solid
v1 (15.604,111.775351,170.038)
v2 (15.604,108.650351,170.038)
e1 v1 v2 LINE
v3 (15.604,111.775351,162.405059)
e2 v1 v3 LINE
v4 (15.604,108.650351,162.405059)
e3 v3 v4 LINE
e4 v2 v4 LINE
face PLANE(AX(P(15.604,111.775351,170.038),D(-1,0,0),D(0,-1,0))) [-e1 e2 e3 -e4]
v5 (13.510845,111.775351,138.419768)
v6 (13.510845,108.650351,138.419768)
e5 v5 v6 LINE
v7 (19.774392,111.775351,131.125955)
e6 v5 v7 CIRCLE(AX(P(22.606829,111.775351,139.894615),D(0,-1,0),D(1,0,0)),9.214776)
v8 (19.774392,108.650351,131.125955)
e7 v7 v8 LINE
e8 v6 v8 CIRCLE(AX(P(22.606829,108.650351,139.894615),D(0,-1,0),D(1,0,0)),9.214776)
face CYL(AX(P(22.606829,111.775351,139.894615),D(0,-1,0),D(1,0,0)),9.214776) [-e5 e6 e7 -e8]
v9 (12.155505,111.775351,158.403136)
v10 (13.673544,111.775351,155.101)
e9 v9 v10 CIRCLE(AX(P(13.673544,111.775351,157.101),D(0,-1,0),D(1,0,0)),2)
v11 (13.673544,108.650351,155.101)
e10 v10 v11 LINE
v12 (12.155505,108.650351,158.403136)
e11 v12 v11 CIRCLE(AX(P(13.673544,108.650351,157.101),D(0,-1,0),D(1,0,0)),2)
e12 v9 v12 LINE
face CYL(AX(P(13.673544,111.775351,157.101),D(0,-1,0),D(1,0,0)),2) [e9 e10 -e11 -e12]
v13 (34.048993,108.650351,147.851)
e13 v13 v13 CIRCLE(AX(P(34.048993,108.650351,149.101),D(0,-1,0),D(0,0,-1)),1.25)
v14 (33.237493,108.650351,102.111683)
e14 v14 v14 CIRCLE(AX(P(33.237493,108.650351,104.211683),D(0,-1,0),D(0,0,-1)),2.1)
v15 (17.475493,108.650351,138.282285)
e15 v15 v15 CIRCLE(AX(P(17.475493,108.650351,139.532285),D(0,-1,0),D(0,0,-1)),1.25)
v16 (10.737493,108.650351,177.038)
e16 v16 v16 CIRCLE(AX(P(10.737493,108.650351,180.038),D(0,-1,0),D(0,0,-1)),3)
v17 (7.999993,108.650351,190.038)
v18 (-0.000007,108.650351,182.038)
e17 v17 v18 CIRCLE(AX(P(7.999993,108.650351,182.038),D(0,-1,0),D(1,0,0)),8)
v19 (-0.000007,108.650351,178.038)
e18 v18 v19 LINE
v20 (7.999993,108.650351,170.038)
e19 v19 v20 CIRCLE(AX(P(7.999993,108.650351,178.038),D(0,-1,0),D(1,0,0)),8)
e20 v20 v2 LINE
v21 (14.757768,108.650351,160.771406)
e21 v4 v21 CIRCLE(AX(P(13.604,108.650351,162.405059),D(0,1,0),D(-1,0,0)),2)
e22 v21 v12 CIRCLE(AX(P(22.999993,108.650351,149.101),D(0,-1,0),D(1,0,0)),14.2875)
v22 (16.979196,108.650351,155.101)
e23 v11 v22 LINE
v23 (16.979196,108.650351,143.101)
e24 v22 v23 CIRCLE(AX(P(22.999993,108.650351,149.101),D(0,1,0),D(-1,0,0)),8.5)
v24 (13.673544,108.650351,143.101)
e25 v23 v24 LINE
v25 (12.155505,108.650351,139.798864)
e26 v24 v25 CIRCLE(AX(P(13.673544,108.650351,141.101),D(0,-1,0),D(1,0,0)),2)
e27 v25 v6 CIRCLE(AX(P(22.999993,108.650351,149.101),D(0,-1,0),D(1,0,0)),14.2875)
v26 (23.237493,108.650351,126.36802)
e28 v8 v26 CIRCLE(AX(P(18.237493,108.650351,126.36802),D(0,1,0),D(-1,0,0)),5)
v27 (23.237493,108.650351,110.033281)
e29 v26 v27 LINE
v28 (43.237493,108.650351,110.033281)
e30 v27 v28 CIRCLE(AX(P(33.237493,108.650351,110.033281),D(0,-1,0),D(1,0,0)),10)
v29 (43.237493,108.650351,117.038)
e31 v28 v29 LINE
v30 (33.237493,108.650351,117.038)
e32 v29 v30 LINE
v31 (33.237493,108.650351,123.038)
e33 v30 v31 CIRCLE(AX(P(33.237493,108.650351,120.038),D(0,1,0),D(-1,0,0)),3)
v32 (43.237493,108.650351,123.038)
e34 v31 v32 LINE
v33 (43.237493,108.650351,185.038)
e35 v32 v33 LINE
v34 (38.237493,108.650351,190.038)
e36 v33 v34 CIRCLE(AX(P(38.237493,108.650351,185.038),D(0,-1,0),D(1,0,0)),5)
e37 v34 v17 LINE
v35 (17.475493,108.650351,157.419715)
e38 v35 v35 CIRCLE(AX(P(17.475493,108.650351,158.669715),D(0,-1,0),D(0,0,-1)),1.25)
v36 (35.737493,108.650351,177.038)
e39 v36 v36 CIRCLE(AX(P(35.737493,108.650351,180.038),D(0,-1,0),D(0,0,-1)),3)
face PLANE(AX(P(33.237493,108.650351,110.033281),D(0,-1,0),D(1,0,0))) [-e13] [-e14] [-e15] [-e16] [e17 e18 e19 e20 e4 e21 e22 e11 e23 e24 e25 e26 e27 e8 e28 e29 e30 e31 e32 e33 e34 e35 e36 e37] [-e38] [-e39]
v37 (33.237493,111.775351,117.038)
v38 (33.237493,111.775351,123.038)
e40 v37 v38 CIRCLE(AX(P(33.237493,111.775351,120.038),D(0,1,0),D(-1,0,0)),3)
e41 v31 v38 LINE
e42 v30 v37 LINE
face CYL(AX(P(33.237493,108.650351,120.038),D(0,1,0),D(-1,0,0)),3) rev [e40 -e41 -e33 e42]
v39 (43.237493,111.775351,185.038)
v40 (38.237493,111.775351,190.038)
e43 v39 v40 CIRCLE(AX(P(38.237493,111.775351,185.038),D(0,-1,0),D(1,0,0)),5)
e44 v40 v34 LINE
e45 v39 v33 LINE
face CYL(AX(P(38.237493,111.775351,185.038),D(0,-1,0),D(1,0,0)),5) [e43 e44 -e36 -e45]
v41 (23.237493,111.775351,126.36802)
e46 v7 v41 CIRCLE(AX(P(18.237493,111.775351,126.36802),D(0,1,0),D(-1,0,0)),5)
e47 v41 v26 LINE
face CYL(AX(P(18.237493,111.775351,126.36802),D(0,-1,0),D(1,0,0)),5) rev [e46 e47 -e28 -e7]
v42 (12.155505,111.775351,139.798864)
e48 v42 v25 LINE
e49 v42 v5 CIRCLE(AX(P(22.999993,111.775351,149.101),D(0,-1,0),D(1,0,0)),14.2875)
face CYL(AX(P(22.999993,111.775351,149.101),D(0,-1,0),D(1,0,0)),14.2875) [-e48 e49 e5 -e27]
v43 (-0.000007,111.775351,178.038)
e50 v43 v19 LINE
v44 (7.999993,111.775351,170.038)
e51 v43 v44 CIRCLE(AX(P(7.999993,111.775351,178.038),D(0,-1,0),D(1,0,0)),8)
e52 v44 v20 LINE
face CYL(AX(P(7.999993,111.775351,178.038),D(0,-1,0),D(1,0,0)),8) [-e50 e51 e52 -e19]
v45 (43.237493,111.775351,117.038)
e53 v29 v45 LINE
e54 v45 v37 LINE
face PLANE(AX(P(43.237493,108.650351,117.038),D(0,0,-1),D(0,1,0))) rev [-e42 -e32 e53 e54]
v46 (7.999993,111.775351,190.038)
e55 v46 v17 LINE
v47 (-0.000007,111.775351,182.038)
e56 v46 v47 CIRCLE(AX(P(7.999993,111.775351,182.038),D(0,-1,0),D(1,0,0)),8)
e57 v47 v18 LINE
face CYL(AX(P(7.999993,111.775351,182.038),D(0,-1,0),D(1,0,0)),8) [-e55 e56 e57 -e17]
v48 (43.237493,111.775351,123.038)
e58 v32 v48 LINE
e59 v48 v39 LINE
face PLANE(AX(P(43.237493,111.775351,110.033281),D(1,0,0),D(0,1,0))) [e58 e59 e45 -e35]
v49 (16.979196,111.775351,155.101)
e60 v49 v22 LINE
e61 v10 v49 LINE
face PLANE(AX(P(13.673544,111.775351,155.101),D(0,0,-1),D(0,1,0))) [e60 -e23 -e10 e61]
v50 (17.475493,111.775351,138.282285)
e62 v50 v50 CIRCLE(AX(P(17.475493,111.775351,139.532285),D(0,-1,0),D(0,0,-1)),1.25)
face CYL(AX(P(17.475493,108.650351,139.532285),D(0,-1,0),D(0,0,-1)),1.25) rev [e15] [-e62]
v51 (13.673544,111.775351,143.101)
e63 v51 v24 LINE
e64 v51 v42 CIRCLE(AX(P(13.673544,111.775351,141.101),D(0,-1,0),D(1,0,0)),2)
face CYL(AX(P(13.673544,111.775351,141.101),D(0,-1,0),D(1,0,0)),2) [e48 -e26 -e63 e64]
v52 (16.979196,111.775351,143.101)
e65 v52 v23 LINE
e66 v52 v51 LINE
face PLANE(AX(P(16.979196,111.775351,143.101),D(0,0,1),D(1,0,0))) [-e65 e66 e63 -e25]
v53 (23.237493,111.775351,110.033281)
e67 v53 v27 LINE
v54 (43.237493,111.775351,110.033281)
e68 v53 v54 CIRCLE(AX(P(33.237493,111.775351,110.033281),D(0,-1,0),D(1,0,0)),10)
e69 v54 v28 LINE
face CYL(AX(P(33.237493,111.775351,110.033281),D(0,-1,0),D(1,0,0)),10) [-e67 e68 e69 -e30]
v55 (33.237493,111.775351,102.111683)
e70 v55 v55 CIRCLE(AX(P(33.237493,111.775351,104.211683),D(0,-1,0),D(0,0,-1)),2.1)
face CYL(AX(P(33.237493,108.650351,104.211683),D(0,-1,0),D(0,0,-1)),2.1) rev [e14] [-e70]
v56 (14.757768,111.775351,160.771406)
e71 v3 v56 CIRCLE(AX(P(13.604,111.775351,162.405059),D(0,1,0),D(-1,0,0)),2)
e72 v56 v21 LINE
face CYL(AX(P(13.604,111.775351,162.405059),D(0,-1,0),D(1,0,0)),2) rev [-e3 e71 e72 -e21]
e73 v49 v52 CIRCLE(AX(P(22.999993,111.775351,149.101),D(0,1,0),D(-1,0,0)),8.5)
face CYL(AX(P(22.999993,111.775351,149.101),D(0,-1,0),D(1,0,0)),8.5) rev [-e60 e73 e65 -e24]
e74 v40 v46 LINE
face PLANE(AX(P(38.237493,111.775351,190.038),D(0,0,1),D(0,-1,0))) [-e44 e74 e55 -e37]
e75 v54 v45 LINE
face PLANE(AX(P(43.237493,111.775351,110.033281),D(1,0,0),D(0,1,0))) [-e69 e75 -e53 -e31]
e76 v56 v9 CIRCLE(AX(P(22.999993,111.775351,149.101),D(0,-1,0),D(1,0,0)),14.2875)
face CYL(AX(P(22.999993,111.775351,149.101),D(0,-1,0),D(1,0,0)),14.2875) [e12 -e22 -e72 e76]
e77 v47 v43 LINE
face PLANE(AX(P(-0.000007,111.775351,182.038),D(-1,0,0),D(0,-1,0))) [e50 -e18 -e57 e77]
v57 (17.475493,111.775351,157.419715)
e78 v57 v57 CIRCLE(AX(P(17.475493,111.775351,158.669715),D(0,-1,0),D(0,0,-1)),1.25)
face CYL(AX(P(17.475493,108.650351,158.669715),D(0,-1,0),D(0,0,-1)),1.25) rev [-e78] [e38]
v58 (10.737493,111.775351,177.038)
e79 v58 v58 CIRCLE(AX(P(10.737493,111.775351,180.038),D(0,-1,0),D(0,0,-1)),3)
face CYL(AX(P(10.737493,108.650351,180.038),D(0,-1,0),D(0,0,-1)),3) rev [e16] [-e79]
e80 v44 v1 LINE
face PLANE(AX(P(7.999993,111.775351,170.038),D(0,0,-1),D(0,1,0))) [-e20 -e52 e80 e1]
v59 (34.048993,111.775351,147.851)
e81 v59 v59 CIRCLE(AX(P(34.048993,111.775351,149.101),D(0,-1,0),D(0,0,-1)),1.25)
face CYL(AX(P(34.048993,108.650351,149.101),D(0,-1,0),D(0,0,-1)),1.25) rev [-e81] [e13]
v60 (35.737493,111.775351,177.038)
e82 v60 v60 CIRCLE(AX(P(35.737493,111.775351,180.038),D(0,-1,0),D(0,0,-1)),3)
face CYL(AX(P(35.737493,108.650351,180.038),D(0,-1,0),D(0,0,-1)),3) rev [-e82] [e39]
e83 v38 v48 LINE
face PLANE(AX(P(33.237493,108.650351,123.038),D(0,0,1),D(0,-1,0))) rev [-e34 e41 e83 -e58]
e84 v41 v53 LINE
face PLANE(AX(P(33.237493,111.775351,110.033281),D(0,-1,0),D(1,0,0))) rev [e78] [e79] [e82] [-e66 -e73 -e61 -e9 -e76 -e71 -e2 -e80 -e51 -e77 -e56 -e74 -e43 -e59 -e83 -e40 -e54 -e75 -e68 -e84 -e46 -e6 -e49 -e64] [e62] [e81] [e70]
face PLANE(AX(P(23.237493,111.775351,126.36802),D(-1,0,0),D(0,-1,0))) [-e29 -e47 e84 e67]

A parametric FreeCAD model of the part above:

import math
import FreeCAD as App
import Part
import Sketcher
from FreeCAD import Vector
Q = App.Units.Quantity

doc = App.newDocument("Part")
body = doc.addObject("PartDesign::Body", "Body")

sketch1 = doc.addObject("Sketcher::SketchObject", "Sketch")
body.addObject(sketch1)
sketch1.AttachmentSupport = (doc.XZ_Plane, [""])
sketch1.MapMode = "FlatFace"
sketch1.AttachmentOffset = App.Placement(Vector(0, 0, -108.650351), App.Rotation())
sketch1.addGeometry(Part.LineSegment(Vector(43.2, 110, 0), Vector(43.2, 185, 0)), False)
sketch1.addGeometry(Part.ArcOfCircle(Part.Circle(Vector(38.2, 185, 0), Vector(0, 0, 1), 5), math.radians(0), math.radians(90)), False)
sketch1.addGeometry(Part.LineSegment(Vector(38.2, 190, 0), Vector(8, 190, 0)), False)
sketch1.addGeometry(Part.ArcOfCircle(Part.Circle(Vector(8, 182, 0), Vector(0, 0, 1), 8), math.radians(90), math.radians(180)), False)
sketch1.addGeometry(Part.LineSegment(Vector(0, 182, 0), Vector(0, 178, 0)), False)
sketch1.addGeometry(Part.ArcOfCircle(Part.Circle(Vector(8, 178, 0), Vector(0, 0, 1), 8), math.radians(180), math.radians(270)), False)
sketch1.addGeometry(Part.LineSegment(Vector(8, 170, 0), Vector(15.6, 170, 0)), False)
sketch1.addGeometry(Part.LineSegment(Vector(15.6, 170, 0), Vector(15.6, 162.4, 0)), False)
sketch1.addGeometry(Part.ArcOfCircle(Part.Circle(Vector(13.6, 162.4, 0), Vector(0, 0, 1), 2), math.radians(-55), math.radians(0)), False)
sketch1.addGeometry(Part.ArcOfCircle(Part.Circle(Vector(23, 149.1, 0), Vector(0, 0, 1), 14.3), math.radians(125.23), math.radians(139.38)), False)
sketch1.addGeometry(Part.ArcOfCircle(Part.Circle(Vector(13.7, 157.1, 0), Vector(0, 0, 1), 2), math.radians(139), math.radians(270)), False)
sketch1.addGeometry(Part.LineSegment(Vector(13.7, 155.1, 0), Vector(17, 155.1, 0)), False)
sketch1.addGeometry(Part.ArcOfCircle(Part.Circle(Vector(23, 149.1, 0), Vector(0, 0, 1), 8.5), math.radians(-135), math.radians(135)), False)
sketch1.addGeometry(Part.LineSegment(Vector(17, 143.1, 0), Vector(13.7, 143.1, 0)), False)
sketch1.addGeometry(Part.ArcOfCircle(Part.Circle(Vector(13.7, 141.1, 0), Vector(0, 0, 1), 2), math.radians(90), math.radians(221)), False)
sketch1.addGeometry(Part.ArcOfCircle(Part.Circle(Vector(23, 149.1, 0), Vector(0, 0, 1), 14.3), math.radians(-139.38), math.radians(-131.62)), False)
sketch1.addGeometry(Part.ArcOfCircle(Part.Circle(Vector(22.6, 139.9, 0), Vector(0, 0, 1), 9.2), math.radians(-171), math.radians(-108)), False)
sketch1.addGeometry(Part.ArcOfCircle(Part.Circle(Vector(18.2, 126.4, 0), Vector(0, 0, 1), 5), math.radians(0), math.radians(72)), False)
sketch1.addGeometry(Part.LineSegment(Vector(23.2, 126.4, 0), Vector(23.2, 110, 0)), False)
sketch1.addGeometry(Part.ArcOfCircle(Part.Circle(Vector(33.2, 110, 0), Vector(0, 0, 1), 10), math.radians(180), math.radians(360)), False)
sketch1.addConstraint(Sketcher.Constraint("Tangent", 0, 2, 1, 1))
sketch1.addConstraint(Sketcher.Constraint("Tangent", 1, 2, 2, 1))
sketch1.addConstraint(Sketcher.Constraint("Tangent", 2, 2, 3, 1))
sketch1.addConstraint(Sketcher.Constraint("Tangent", 3, 2, 4, 1))
sketch1.addConstraint(Sketcher.Constraint("Tangent", 4, 2, 5, 1))
sketch1.addConstraint(Sketcher.Constraint("Tangent", 5, 2, 6, 1))
sketch1.addConstraint(Sketcher.Constraint("Coincident", 6, 2, 7, 1))
sketch1.addConstraint(Sketcher.Constraint("Tangent", 7, 2, 8, 2))
sketch1.addConstraint(Sketcher.Constraint("Tangent", 8, 1, 9, 1))
sketch1.addConstraint(Sketcher.Constraint("Tangent", 9, 2, 10, 1))
sketch1.addConstraint(Sketcher.Constraint("Tangent", 10, 2, 11, 1))
sketch1.addConstraint(Sketcher.Constraint("Coincident", 11, 2, 12, 2))
sketch1.addConstraint(Sketcher.Constraint("Coincident", 12, 1, 13, 1))
sketch1.addConstraint(Sketcher.Constraint("Tangent", 13, 2, 14, 1))
sketch1.addConstraint(Sketcher.Constraint("Tangent", 14, 2, 15, 1))
sketch1.addConstraint(Sketcher.Constraint("Coincident", 15, 2, 16, 1))
sketch1.addConstraint(Sketcher.Constraint("Tangent", 16, 2, 17, 2))
sketch1.addConstraint(Sketcher.Constraint("Tangent", 17, 1, 18, 1))
sketch1.addConstraint(Sketcher.Constraint("Tangent", 18, 2, 19, 1))
sketch1.addConstraint(Sketcher.Constraint("Tangent", 19, 2, 0, 1))
sketch1.addConstraint(Sketcher.Constraint("Vertical", 0))
sketch1.addConstraint(Sketcher.Constraint("Horizontal", 2))
sketch1.addConstraint(Sketcher.Constraint("Vertical", 4))
sketch1.addConstraint(Sketcher.Constraint("Horizontal", 6))
sketch1.addConstraint(Sketcher.Constraint("Vertical", 7))
sketch1.addConstraint(Sketcher.Constraint("Horizontal", 11))
sketch1.addConstraint(Sketcher.Constraint("Horizontal", 13))
sketch1.addConstraint(Sketcher.Constraint("Vertical", 18))
sketch1.addConstraint(Sketcher.Constraint("Coincident", 12, 3, 9, 3))
sketch1.addConstraint(Sketcher.Constraint("Coincident", 15, 3, 9, 3))
sketch1.addConstraint(Sketcher.Constraint("Equal", 3, 5))
sketch1.addConstraint(Sketcher.Constraint("Equal", 8, 10))
sketch1.addConstraint(Sketcher.Constraint("Equal", 10, 14))
sketch1.addConstraint(Sketcher.Constraint("Equal", 9, 15))
sketch1.addConstraint(Sketcher.Constraint("Equal", 1, 17))
sketch1.addConstraint(Sketcher.Constraint("Vertical", 10, 3, 14, 3))
sketch1.addConstraint(Sketcher.Constraint("Radius", 1, Q("5 mm")))
sketch1.addConstraint(Sketcher.Constraint("Radius", 3, Q("8 mm")))
sketch1.addConstraint(Sketcher.Constraint("Radius", 8, Q("2 mm")))
sketch1.addConstraint(Sketcher.Constraint("Radius", 19, Q("10 mm")))
sketch1.addConstraint(Sketcher.Constraint("Radius", 12, Q("8.5 mm")))
sketch1.addConstraint(Sketcher.Constraint("DistanceY", 4, 2, 4, 1, Q("4 mm")))
sketch1.addConstraint(Sketcher.Constraint("DistanceX", 5, 3, 9, 3, Q("15 mm")))
sketch1.addConstraint(Sketcher.Constraint("DistanceY", 9, 3, 10, 3, Q("8 mm")))
sketch1.addConstraint(Sketcher.Constraint("Radius", 9, Q("14.2875 mm")))
sketch1.addConstraint(Sketcher.Constraint("DistanceX", 2, 2, 2, 1, Q("30.2375 mm")))
sketch1.addConstraint(Sketcher.Constraint("DistanceY", -1, 1, 1, 3, Q("185.038 mm")))
sketch1.addConstraint(Sketcher.Constraint("DistanceX", -1, 1, 8, 3, Q("13.604 mm")))
sketch1.addConstraint(Sketcher.Constraint("DistanceY", -1, 1, 9, 3, Q("149.101 mm")))
sketch1.addConstraint(Sketcher.Constraint("Radius", 16, Q("9.214776 mm")))
sketch1.addConstraint(Sketcher.Constraint("DistanceY", 0, 1, 0, 2, Q("75.004719 mm")))
sketch1.addConstraint(Sketcher.Constraint("DistanceY", 7, 2, 7, 1, Q("7.632941 mm")))
sketch1.addConstraint(Sketcher.Constraint("DistanceY", 18, 2, 18, 1, Q("16.334739 mm")))
sketch1.addConstraint(Sketcher.Constraint("DistanceX", 15, 2, 14, 3, Q("0.162699 mm")))
pad1 = doc.addObject("PartDesign::Pad", "Pad")
body.addObject(pad1)
pad1.Profile = sketch1
pad1.Length = 3.125
pad1.Reversed = True

sketch2 = doc.addObject("Sketcher::SketchObject", "Sketch001")
body.addObject(sketch2)
sketch2.AttachmentSupport = (doc.XZ_Plane, [""])
sketch2.MapMode = "FlatFace"
sketch2.AttachmentOffset = App.Placement(Vector(0, 0, -111.775351), App.Rotation())
sketch2.addGeometry(Part.LineSegment(Vector(43.2, 123, 0), Vector(43.2, 117, 0)), False)
sketch2.addGeometry(Part.LineSegment(Vector(43.2, 117, 0), Vector(33.2, 117, 0)), False)
sketch2.addGeometry(Part.ArcOfCircle(Part.Circle(Vector(33.2, 120, 0), Vector(0, 0, 1), 3), math.radians(90), math.radians(270)), False)
sketch2.addGeometry(Part.LineSegment(Vector(33.2, 123, 0), Vector(43.2, 123, 0)), False)
sketch2.addConstraint(Sketcher.Constraint("Coincident", 0, 2, 1, 1))
sketch2.addConstraint(Sketcher.Constraint("Tangent", 1, 2, 2, 2))
sketch2.addConstraint(Sketcher.Constraint("Tangent", 2, 1, 3, 1))
sketch2.addConstraint(Sketcher.Constraint("Coincident", 3, 2, 0, 1))
sketch2.addConstraint(Sketcher.Constraint("Vertical", 0))
sketch2.addConstraint(Sketcher.Constraint("Horizontal", 1))
sketch2.addConstraint(Sketcher.Constraint("Horizontal", 3))
sketch2.addConstraint(Sketcher.Constraint("Radius", 2, Q("3 mm")))
sketch2.addConstraint(Sketcher.Constraint("DistanceX", 1, 2, 1, 1, Q("10 mm")))
sketch2.addConstraint(Sketcher.Constraint("DistanceY", -1, 1, 2, 3, Q("120.038 mm")))
sketch2.addConstraint(Sketcher.Constraint("DistanceX", -1, 1, 2, 3, Q("33.237493 mm")))
pocket1 = doc.addObject("PartDesign::Pocket", "Pocket")
body.addObject(pocket1)
pocket1.Profile = sketch2
pocket1.Type = "ThroughAll"
pocket1.Reversed = True

sketch3 = doc.addObject("Sketcher::SketchObject", "Sketch002")
body.addObject(sketch3)
sketch3.AttachmentSupport = (doc.XZ_Plane, [""])
sketch3.MapMode = "FlatFace"
sketch3.AttachmentOffset = App.Placement(Vector(0, 0, -108.650351), App.Rotation())
sketch3.addGeometry(Part.Circle(Vector(10.7, 180, 0), Vector(0, 0, 1), 3), False)
sketch3.addGeometry(Part.Circle(Vector(35.7, 180, 0), Vector(0, 0, 1), 3), False)
sketch3.addConstraint(Sketcher.Constraint("Equal", 0, 1))
sketch3.addConstraint(Sketcher.Constraint("Horizontal", 0, 3, 1, 3))
sketch3.addConstraint(Sketcher.Constraint("Diameter", 0, Q("6 mm")))
sketch3.addConstraint(Sketcher.Constraint("DistanceX", 0, 3, 1, 3, Q("25 mm")))
sketch3.addConstraint(Sketcher.Constraint("DistanceY", -1, 1, 0, 3, Q("180.038 mm")))
sketch3.addConstraint(Sketcher.Constraint("DistanceX", -1, 1, 0, 3, Q("10.737493 mm")))
doc.recompute()
hole = doc.addObject("PartDesign::Hole", "Hole")
body.addObject(hole)
hole.Profile = sketch3
hole.ThreadType = "None"
hole.Diameter = 6
hole.DepthType = "ThroughAll"

sketch4 = doc.addObject("Sketcher::SketchObject", "Sketch003")
body.addObject(sketch4)
sketch4.AttachmentSupport = (doc.XZ_Plane, [""])
sketch4.MapMode = "FlatFace"
sketch4.AttachmentOffset = App.Placement(Vector(0, 0, -108.650351), App.Rotation())
sketch4.addGeometry(Part.Circle(Vector(34, 149.1, 0), Vector(0, 0, 1), 1.2), False)
sketch4.addGeometry(Part.Circle(Vector(17.5, 158.7, 0), Vector(0, 0, 1), 1.2), False)
sketch4.addGeometry(Part.Circle(Vector(17.5, 139.5, 0), Vector(0, 0, 1), 1.2), False)
sketch4.addConstraint(Sketcher.Constraint("Equal", 0, 1))
sketch4.addConstraint(Sketcher.Constraint("Equal", 1, 2))
sketch4.addConstraint(Sketcher.Constraint("Vertical", 1, 3, 2, 3))
sketch4.addConstraint(Sketcher.Constraint("Diameter", 0, Q("2.5 mm")))
sketch4.addConstraint(Sketcher.Constraint("DistanceY", -1, 1, 0, 3, Q("149.101 mm")))
sketch4.addConstraint(Sketcher.Constraint("DistanceX", 1, 3, 0, 3, Q("16.5735 mm")))
sketch4.addConstraint(Sketcher.Constraint("DistanceY", 2, 3, 1, 3, Q("19.137429 mm")))
sketch4.addConstraint(Sketcher.Constraint("DistanceX", -1, 1, 0, 3, Q("34.048993 mm")))
sketch4.addConstraint(Sketcher.Constraint("DistanceY", -1, 1, 1, 3, Q("158.669715 mm")))
doc.recompute()
hole2 = doc.addObject("PartDesign::Hole", "Hole001")
body.addObject(hole2)
hole2.Profile = sketch4
hole2.ThreadType = "None"
hole2.Diameter = 2.5
hole2.DepthType = "ThroughAll"

sketch5 = doc.addObject("Sketcher::SketchObject", "Sketch004")
body.addObject(sketch5)
sketch5.AttachmentSupport = (doc.XZ_Plane, [""])
sketch5.MapMode = "FlatFace"
sketch5.AttachmentOffset = App.Placement(Vector(0, 0, -108.650351), App.Rotation())
sketch5.addGeometry(Part.Circle(Vector(33.2, 104.2, 0), Vector(0, 0, 1), 2.1), False)
sketch5.addConstraint(Sketcher.Constraint("Diameter", 0, Q("4.2 mm")))
sketch5.addConstraint(Sketcher.Constraint("DistanceX", -1, 1, 0, 3, Q("33.237493 mm")))
sketch5.addConstraint(Sketcher.Constraint("DistanceY", -1, 1, 0, 3, Q("104.211683 mm")))
doc.recompute()
hole3 = doc.addObject("PartDesign::Hole", "Hole002")
body.addObject(hole3)
hole3.Profile = sketch5
hole3.ThreadType = "None"
hole3.Diameter = 4.2
hole3.DepthType = "ThroughAll"

doc.recompute()
